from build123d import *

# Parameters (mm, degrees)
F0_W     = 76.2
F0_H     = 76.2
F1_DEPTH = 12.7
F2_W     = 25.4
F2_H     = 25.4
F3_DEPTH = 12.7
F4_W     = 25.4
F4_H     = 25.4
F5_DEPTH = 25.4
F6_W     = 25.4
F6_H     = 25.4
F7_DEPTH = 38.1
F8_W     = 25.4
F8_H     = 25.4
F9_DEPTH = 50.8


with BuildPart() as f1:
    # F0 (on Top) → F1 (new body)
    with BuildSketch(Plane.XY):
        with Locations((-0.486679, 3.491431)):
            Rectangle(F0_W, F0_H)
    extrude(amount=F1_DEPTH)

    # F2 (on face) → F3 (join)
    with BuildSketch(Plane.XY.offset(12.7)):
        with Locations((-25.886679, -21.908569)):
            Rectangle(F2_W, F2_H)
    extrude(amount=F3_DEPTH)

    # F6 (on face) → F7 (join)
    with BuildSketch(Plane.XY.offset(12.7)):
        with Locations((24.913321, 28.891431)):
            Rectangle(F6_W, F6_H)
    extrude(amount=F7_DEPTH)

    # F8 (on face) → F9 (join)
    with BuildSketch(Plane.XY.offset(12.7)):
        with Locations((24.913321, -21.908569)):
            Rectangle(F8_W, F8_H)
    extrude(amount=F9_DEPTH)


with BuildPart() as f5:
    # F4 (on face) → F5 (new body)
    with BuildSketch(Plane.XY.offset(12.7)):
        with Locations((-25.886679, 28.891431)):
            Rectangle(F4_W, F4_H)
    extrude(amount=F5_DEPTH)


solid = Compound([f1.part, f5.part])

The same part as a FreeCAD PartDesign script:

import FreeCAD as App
import Part
import Sketcher
Q = App.Units.Quantity

doc = App.newDocument("Part")
body = doc.addObject("PartDesign::Body", "Body")

# Sketch on XY plane
sketch1 = doc.addObject("Sketcher::SketchObject", "Sketch")
body.addObject(sketch1)
sketch1.AttachmentSupport = (doc.XY_Plane, [""])
sketch1.MapMode = "FlatFace"
sketch1.addGeometry(Part.LineSegment(App.Vector(-38.586679, 41.591431, 0), App.Vector(-38.586679, -34.608569, 0)), False)
sketch1.addGeometry(Part.LineSegment(App.Vector(-38.586679, -34.608569, 0), App.Vector(37.613321, -34.608569, 0)), False)
sketch1.addGeometry(Part.LineSegment(App.Vector(37.613321, -34.608569, 0), App.Vector(37.613321, 41.591431, 0)), False)
sketch1.addGeometry(Part.LineSegment(App.Vector(37.613321, 41.591431, 0), App.Vector(-38.586679, 41.591431, 0)), False)
sketch1.addConstraint(Sketcher.Constraint("Coincident", 0, 2, 1, 1))
sketch1.addConstraint(Sketcher.Constraint("Coincident", 1, 2, 2, 1))
sketch1.addConstraint(Sketcher.Constraint("Coincident", 2, 2, 3, 1))
sketch1.addConstraint(Sketcher.Constraint("Coincident", 3, 2, 0, 1))
sketch1.addConstraint(Sketcher.Constraint("Vertical", 0))
sketch1.addConstraint(Sketcher.Constraint("Horizontal", 1))
sketch1.addConstraint(Sketcher.Constraint("Vertical", 2))
sketch1.addConstraint(Sketcher.Constraint("Horizontal", 3))
sketch1.addConstraint(Sketcher.Constraint("Equal", 3, 0))
sketch1.addConstraint(Sketcher.Constraint("DistanceX", 1, 1, 1, 2, Q("3 in")))
sketch1.addConstraint(Sketcher.Constraint("DistanceX", 0, 2, -1, 1, Q("38.586679 mm")))
sketch1.addConstraint(Sketcher.Constraint("DistanceY", 0, 2, -1, 1, Q("34.608569 mm")))
pad1 = doc.addObject("PartDesign::Pad", "Pad")
body.addObject(pad1)
pad1.Profile = sketch1
pad1.Length = Q("0.5 in")

# Sketch on XY plane
sketch2 = doc.addObject("Sketcher::SketchObject", "Sketch001")
body.addObject(sketch2)
sketch2.AttachmentSupport = (doc.XY_Plane, [""])
sketch2.MapMode = "FlatFace"
sketch2.AttachmentOffset = App.Placement(App.Vector(0, 0, 0.5 * 25.4), App.Rotation())
sketch2.addGeometry(Part.LineSegment(App.Vector(-38.586679, -9.208569, 0), App.Vector(-38.586679, -34.608569, 0)), False)
sketch2.addGeometry(Part.LineSegment(App.Vector(-38.586679, -34.608569, 0), App.Vector(-13.186679, -34.608569, 0)), False)
sketch2.addGeometry(Part.LineSegment(App.Vector(-13.186679, -34.608569, 0), App.Vector(-13.186679, -9.208569, 0)), False)
sketch2.addGeometry(Part.LineSegment(App.Vector(-13.186679, -9.208569, 0), App.Vector(-38.586679, -9.208569, 0)), False)
sketch2.addConstraint(Sketcher.Constraint("Coincident", 0, 2, 1, 1))
sketch2.addConstraint(Sketcher.Constraint("Coincident", 1, 2, 2, 1))
sketch2.addConstraint(Sketcher.Constraint("Coincident", 2, 2, 3, 1))
sketch2.addConstraint(Sketcher.Constraint("Coincident", 3, 2, 0, 1))
sketch2.addConstraint(Sketcher.Constraint("Vertical", 0))
sketch2.addConstraint(Sketcher.Constraint("Horizontal", 1))
sketch2.addConstraint(Sketcher.Constraint("Vertical", 2))
sketch2.addConstraint(Sketcher.Constraint("Horizontal", 3))
sketch2.addConstraint(Sketcher.Constraint("Equal", 3, 0))
sketch2.addConstraint(Sketcher.Constraint("DistanceX", 1, 1, 1, 2, Q("1 in")))
sketch2.addConstraint(Sketcher.Constraint("DistanceX", 0, 2, -1, 1, Q("38.586679 mm")))
sketch2.addConstraint(Sketcher.Constraint("DistanceY", 0, 2, -1, 1, Q("34.608569 mm")))
pad2 = doc.addObject("PartDesign::Pad", "Pad001")
body.addObject(pad2)
pad2.Profile = sketch2
pad2.Length = Q("0.5 in")

# Sketch on XY plane
sketch3 = doc.addObject("Sketcher::SketchObject", "Sketch002")
body.addObject(sketch3)
sketch3.AttachmentSupport = (doc.XY_Plane, [""])
sketch3.MapMode = "FlatFace"
sketch3.AttachmentOffset = App.Placement(App.Vector(0, 0, 0.5 * 25.4), App.Rotation())
sketch3.addGeometry(Part.LineSegment(App.Vector(12.213321, 41.591431, 0), App.Vector(12.213321, 16.191431, 0)), False)
sketch3.addGeometry(Part.LineSegment(App.Vector(12.213321, 16.191431, 0), App.Vector(37.613321, 16.191431, 0)), False)
sketch3.addGeometry(Part.LineSegment(App.Vector(37.613321, 16.191431, 0), App.Vector(37.613321, 41.591431, 0)), False)
sketch3.addGeometry(Part.LineSegment(App.Vector(37.613321, 41.591431, 0), App.Vector(12.213321, 41.591431, 0)), False)
sketch3.addConstraint(Sketcher.Constraint("Coincident", 0, 2, 1, 1))
sketch3.addConstraint(Sketcher.Constraint("Coincident", 1, 2, 2, 1))
sketch3.addConstraint(Sketcher.Constraint("Coincident", 2, 2, 3, 1))
sketch3.addConstraint(Sketcher.Constraint("Coincident", 3, 2, 0, 1))
sketch3.addConstraint(Sketcher.Constraint("Vertical", 0))
sketch3.addConstraint(Sketcher.Constraint("Horizontal", 1))
sketch3.addConstraint(Sketcher.Constraint("Vertical", 2))
sketch3.addConstraint(Sketcher.Constraint("Horizontal", 3))
sketch3.addConstraint(Sketcher.Constraint("Equal", 3, 0))
sketch3.addConstraint(Sketcher.Constraint("DistanceX", 1, 1, 1, 2, Q("1 in")))
sketch3.addConstraint(Sketcher.Constraint("DistanceX", -1, 1, 0, 2, Q("12.213321 mm")))
sketch3.addConstraint(Sketcher.Constraint("DistanceY", -1, 1, 0, 2, Q("16.191431 mm")))
pad3 = doc.addObject("PartDesign::Pad", "Pad002")
body.addObject(pad3)
pad3.Profile = sketch3
pad3.Length = Q("1.5 in")

# Sketch on XY plane
sketch4 = doc.addObject("Sketcher::SketchObject", "Sketch003")
body.addObject(sketch4)
sketch4.AttachmentSupport = (doc.XY_Plane, [""])
sketch4.MapMode = "FlatFace"
sketch4.AttachmentOffset = App.Placement(App.Vector(0, 0, 0.5 * 25.4), App.Rotation())
sketch4.addGeometry(Part.LineSegment(App.Vector(12.213321, -9.208569, 0), App.Vector(12.213321, -34.608569, 0)), False)
sketch4.addGeometry(Part.LineSegment(App.Vector(12.213321, -34.608569, 0), App.Vector(37.613321, -34.608569, 0)), False)
sketch4.addGeometry(Part.LineSegment(App.Vector(37.613321, -34.608569, 0), App.Vector(37.613321, -9.208569, 0)), False)
sketch4.addGeometry(Part.LineSegment(App.Vector(37.613321, -9.208569, 0), App.Vector(12.213321, -9.208569, 0)), False)
sketch4.addConstraint(Sketcher.Constraint("Coincident", 0, 2, 1, 1))
sketch4.addConstraint(Sketcher.Constraint("Coincident", 1, 2, 2, 1))
sketch4.addConstraint(Sketcher.Constraint("Coincident", 2, 2, 3, 1))
sketch4.addConstraint(Sketcher.Constraint("Coincident", 3, 2, 0, 1))
sketch4.addConstraint(Sketcher.Constraint("Vertical", 0))
sketch4.addConstraint(Sketcher.Constraint("Horizontal", 1))
sketch4.addConstraint(Sketcher.Constraint("Vertical", 2))
sketch4.addConstraint(Sketcher.Constraint("Horizontal", 3))
sketch4.addConstraint(Sketcher.Constraint("Equal", 3, 0))
sketch4.addConstraint(Sketcher.Constraint("DistanceX", 1, 1, 1, 2, Q("1 in")))
sketch4.addConstraint(Sketcher.Constraint("DistanceX", -1, 1, 0, 2, Q("12.213321 mm")))
sketch4.addConstraint(Sketcher.Constraint("DistanceY", 0, 2, -1, 1, Q("34.608569 mm")))
pad4 = doc.addObject("PartDesign::Pad", "Pad003")
body.addObject(pad4)
pad4.Profile = sketch4
pad4.Length = Q("2 in")
body2 = doc.addObject("PartDesign::Body", "Body001")

# Sketch on XY plane
sketch5 = doc.addObject("Sketcher::SketchObject", "Sketch004")
body2.addObject(sketch5)
sketch5.AttachmentSupport = (doc.getObject("XY_Plane001"), [""])
sketch5.MapMode = "FlatFace"
sketch5.AttachmentOffset = App.Placement(App.Vector(0, 0, 0.5 * 25.4), App.Rotation())
sketch5.addGeometry(Part.LineSegment(App.Vector(-38.586679, 41.591431, 0), App.Vector(-38.586679, 16.191431, 0)), False)
sketch5.addGeometry(Part.LineSegment(App.Vector(-38.586679, 16.191431, 0), App.Vector(-13.186679, 16.191431, 0)), False)
sketch5.addGeometry(Part.LineSegment(App.Vector(-13.186679, 16.191431, 0), App.Vector(-13.186679, 41.591431, 0)), False)
sketch5.addGeometry(Part.LineSegment(App.Vector(-13.186679, 41.591431, 0), App.Vector(-38.586679, 41.591431, 0)), False)
sketch5.addConstraint(Sketcher.Constraint("Coincident", 0, 2, 1, 1))
sketch5.addConstraint(Sketcher.Constraint("Coincident", 1, 2, 2, 1))
sketch5.addConstraint(Sketcher.Constraint("Coincident", 2, 2, 3, 1))
sketch5.addConstraint(Sketcher.Constraint("Coincident", 3, 2, 0, 1))
sketch5.addConstraint(Sketcher.Constraint("Vertical", 0))
sketch5.addConstraint(Sketcher.Constraint("Horizontal", 1))
sketch5.addConstraint(Sketcher.Constraint("Vertical", 2))
sketch5.addConstraint(Sketcher.Constraint("Horizontal", 3))
sketch5.addConstraint(Sketcher.Constraint("Equal", 3, 0))
sketch5.addConstraint(Sketcher.Constraint("DistanceX", 1, 1, 1, 2, Q("1 in")))
sketch5.addConstraint(Sketcher.Constraint("DistanceX", 0, 2, -1, 1, Q("38.586679 mm")))
sketch5.addConstraint(Sketcher.Constraint("DistanceY", -1, 1, 0, 2, Q("16.191431 mm")))
pad5 = doc.addObject("PartDesign::Pad", "Pad004")
body2.addObject(pad5)
pad5.Profile = sketch5
pad5.Length = Q("1 in")

doc.recompute()
